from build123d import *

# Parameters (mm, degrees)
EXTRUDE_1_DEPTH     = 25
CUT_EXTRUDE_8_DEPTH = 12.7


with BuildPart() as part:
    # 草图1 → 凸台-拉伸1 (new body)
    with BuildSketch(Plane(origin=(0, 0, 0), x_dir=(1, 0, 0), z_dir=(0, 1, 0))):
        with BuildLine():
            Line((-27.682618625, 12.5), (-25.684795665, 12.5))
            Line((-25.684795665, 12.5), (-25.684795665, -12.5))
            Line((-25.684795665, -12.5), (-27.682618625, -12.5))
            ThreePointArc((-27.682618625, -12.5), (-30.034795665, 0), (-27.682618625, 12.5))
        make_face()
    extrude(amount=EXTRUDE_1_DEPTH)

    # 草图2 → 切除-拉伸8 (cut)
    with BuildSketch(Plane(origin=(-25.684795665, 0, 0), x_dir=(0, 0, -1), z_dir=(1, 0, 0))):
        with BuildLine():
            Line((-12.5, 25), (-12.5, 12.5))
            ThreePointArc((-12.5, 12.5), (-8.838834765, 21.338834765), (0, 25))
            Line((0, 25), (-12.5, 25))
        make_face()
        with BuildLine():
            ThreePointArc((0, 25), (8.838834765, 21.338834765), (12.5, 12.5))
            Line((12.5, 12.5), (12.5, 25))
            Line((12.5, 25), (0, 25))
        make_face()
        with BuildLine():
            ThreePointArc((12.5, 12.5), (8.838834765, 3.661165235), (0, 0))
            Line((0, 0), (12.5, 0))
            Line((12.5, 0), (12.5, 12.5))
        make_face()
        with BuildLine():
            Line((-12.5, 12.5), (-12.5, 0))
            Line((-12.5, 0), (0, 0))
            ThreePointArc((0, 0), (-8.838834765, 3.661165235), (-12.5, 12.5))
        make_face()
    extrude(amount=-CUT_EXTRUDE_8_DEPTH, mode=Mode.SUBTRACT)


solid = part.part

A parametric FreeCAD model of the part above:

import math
import FreeCAD as App
import Part
import Sketcher
Q = App.Units.Quantity

doc = App.newDocument("Part")
body = doc.addObject("PartDesign::Body", "Body")

# Sketch on XZ plane
sketch1 = body.newObject("Sketcher::SketchObject", "Sketch")
sketch1.AttachmentSupport = (doc.getObject("XZ_Plane"), [""])
sketch1.MapMode = "FlatFace"
sketch1.addGeometry([
    Part.LineSegment(App.Vector(-25.7, -12.5, 0), App.Vector(-27.7, -12.5, 0)),
    Part.ArcOfCircle(Part.Circle(App.Vector(4.4, 0, 0), App.Vector(0, 0, 1), 34.4), math.radians(159), math.radians(201)),
    Part.LineSegment(App.Vector(-27.7, 12.5, 0), App.Vector(-25.7, 12.5, 0)),
    Part.LineSegment(App.Vector(-25.7, 12.5, 0), App.Vector(-25.7, -12.5, 0)),
], False)
sketch1.addConstraint([
    Sketcher.Constraint("Coincident", 0, 2, 1, 2),
    Sketcher.Constraint("Coincident", 1, 1, 2, 1),
    Sketcher.Constraint("Coincident", 2, 2, 3, 1),
    Sketcher.Constraint("Coincident", 3, 2, 0, 1),
    Sketcher.Constraint("Horizontal", 0),
    Sketcher.Constraint("Horizontal", 2),
    Sketcher.Constraint("Vertical", 3),
    Sketcher.Constraint("Symmetric", 0, 2, 1, 1, -1),
    Sketcher.Constraint("DistanceY", 3, 2, 3, 1, Q("25 mm")),
    Sketcher.Constraint("Radius", 1, Q("34.39 mm")),
    Sketcher.Constraint("DistanceX", 2, 2, 1, 3, Q("30.04 mm")),
    Sketcher.Constraint("DistanceX", 0, 2, -1, 1, Q("27.682619 mm")),
])
pad1 = body.newObject("PartDesign::Pad", "Pad")
pad1.Profile = sketch1
pad1.Length = 25
pad1.Reversed = True

# Sketch on YZ plane
sketch2 = body.newObject("Sketcher::SketchObject", "Sketch001")
sketch2.AttachmentSupport = (doc.getObject("YZ_Plane"), [""])
sketch2.MapMode = "FlatFace"
sketch2.AttachmentOffset = App.Placement(App.Vector(0, 0, -25.684796), App.Rotation())
sketch2.addGeometry([
    Part.LineSegment(App.Vector(25, 12, 0), App.Vector(12, 12, 0)),  # 0
    Part.ArcOfCircle(Part.Circle(App.Vector(13, 0, 0), App.Vector(0, 0, 1), 12), math.radians(0), math.radians(90)),  # 1
    Part.LineSegment(App.Vector(25, 0, 0), App.Vector(25, 12, 0)),  # 2
    Part.ArcOfCircle(Part.Circle(App.Vector(13, 0, 0), App.Vector(0, 0, 1), 12), math.radians(-90), math.radians(0)),  # 3
    Part.LineSegment(App.Vector(12, -12, 0), App.Vector(25, -12, 0)),  # 4
    Part.LineSegment(App.Vector(25, -12, 0), App.Vector(25, 0, 0)),  # 5
    Part.ArcOfCircle(Part.Circle(App.Vector(12, 0, 0), App.Vector(0, 0, 1), 12), math.radians(180), math.radians(270)),  # 6
    Part.LineSegment(App.Vector(0, 0, 0), App.Vector(0, -12, 0)),  # 7
    Part.LineSegment(App.Vector(0, -12, 0), App.Vector(12, -12, 0)),  # 8
    Part.LineSegment(App.Vector(12, 12, 0), App.Vector(0, 12, 0)),  # 9
    Part.LineSegment(App.Vector(0, 12, 0), App.Vector(0, 0, 0)),  # 10
    Part.ArcOfCircle(Part.Circle(App.Vector(12, 0, 0), App.Vector(0, 0, 1), 12), math.radians(90), math.radians(180)),  # 11
], False)
sketch2.addConstraint([
    Sketcher.Constraint("Tangent", 0, 2, 1, 2),
    Sketcher.Constraint("Tangent", 1, 1, 2, 1),
    Sketcher.Constraint("Coincident", 2, 2, 0, 1),
    Sketcher.Constraint("Tangent", 3, 1, 4, 1),
    Sketcher.Constraint("Coincident", 4, 2, 5, 1),
    Sketcher.Constraint("Tangent", 5, 2, 3, 2),
    Sketcher.Constraint("Tangent", 6, 1, 7, 1),
    Sketcher.Constraint("Coincident", 7, 2, 8, 1),
    Sketcher.Constraint("Tangent", 8, 2, 6, 2),
    Sketcher.Constraint("Coincident", 9, 2, 10, 1),
    Sketcher.Constraint("Tangent", 10, 2, 11, 2),
    Sketcher.Constraint("Tangent", 11, 1, 9, 1),
    Sketcher.Constraint("Horizontal", 0),
    Sketcher.Constraint("Vertical", 2),
    Sketcher.Constraint("Horizontal", 4),
    Sketcher.Constraint("Vertical", 5),
    Sketcher.Constraint("Vertical", 7),
    Sketcher.Constraint("Horizontal", 8),
    Sketcher.Constraint("Horizontal", 9),
    Sketcher.Constraint("Vertical", 10),
    Sketcher.Constraint("Coincident", 6, 1, -1, 1),
    Sketcher.Constraint("Coincident", 10, 2, -1, 1),
    Sketcher.Constraint("Coincident", 3, 3, 1, 3),
    Sketcher.Constraint("Coincident", 6, 3, 1, 3),
    Sketcher.Constraint("Coincident", 11, 1, 0, 2),
    Sketcher.Constraint("Equal", 1, 3),
    Sketcher.Constraint("Radius", 1, Q("12.5 mm")),
])
pocket1 = body.newObject("PartDesign::Pocket", "Pocket")
pocket1.Profile = sketch2
pocket1.Length = 12.7

doc.recompute()
